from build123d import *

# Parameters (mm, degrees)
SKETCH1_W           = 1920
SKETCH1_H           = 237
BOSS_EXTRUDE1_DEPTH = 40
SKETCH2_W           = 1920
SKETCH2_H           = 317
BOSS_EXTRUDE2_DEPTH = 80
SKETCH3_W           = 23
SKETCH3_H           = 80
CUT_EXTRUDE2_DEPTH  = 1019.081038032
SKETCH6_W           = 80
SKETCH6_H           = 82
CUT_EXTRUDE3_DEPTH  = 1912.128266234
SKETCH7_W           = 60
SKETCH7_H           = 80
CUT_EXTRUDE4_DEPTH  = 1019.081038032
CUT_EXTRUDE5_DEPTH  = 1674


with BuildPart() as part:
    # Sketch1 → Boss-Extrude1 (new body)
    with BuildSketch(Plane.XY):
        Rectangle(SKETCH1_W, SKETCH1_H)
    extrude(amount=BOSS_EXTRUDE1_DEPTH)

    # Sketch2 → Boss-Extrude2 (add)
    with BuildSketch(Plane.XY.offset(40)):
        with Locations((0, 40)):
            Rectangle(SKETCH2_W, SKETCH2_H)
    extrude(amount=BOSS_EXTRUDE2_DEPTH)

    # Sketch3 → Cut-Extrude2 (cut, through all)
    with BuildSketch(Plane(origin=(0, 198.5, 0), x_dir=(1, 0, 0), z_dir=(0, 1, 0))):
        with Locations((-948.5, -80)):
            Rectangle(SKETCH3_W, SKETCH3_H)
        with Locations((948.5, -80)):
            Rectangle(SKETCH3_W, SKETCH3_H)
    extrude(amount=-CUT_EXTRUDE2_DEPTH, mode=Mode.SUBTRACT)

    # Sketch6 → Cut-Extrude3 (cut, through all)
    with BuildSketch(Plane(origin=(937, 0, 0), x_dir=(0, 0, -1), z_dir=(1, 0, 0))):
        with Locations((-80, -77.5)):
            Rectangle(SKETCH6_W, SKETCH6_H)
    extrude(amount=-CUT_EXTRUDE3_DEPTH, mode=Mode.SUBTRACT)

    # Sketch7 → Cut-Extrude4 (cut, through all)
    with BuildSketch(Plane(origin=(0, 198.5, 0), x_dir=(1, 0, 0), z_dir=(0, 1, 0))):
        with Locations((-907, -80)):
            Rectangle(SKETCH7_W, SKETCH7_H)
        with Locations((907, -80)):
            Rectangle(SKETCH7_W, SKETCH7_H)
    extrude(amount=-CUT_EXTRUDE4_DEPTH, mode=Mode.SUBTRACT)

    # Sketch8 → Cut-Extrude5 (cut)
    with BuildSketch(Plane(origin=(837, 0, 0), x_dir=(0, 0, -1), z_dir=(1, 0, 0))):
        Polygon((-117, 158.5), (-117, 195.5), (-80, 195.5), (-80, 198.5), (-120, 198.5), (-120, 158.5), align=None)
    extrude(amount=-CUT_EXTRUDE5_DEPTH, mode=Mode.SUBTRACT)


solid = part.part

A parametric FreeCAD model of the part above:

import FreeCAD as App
import Part
import Sketcher
from FreeCAD import Vector

doc = App.newDocument("Part")
body = doc.addObject("PartDesign::Body", "Body")

sketch1 = body.newObject("Sketcher::SketchObject", "Sketch")
sketch1.AttachmentSupport = (doc.getObject("XY_Plane"), [""])
sketch1.MapMode = "FlatFace"
sketch1.addGeometry([
    Part.LineSegment(Vector(-960, 118, 0), Vector(-960, -118, 0)),
    Part.LineSegment(Vector(-960, -118, 0), Vector(960, -118, 0)),
    Part.LineSegment(Vector(960, -118, 0), Vector(960, 118, 0)),
    Part.LineSegment(Vector(960, 118, 0), Vector(-960, 118, 0)),
], False)
sketch1.addConstraint([
    Sketcher.Constraint("Coincident", 0, 2, 1, 1),
    Sketcher.Constraint("Coincident", 1, 2, 2, 1),
    Sketcher.Constraint("Coincident", 2, 2, 3, 1),
    Sketcher.Constraint("Coincident", 3, 2, 0, 1),
    Sketcher.Constraint("Vertical", 0),
    Sketcher.Constraint("Horizontal", 1),
    Sketcher.Constraint("Vertical", 2),
    Sketcher.Constraint("Horizontal", 3),
    Sketcher.Constraint("Symmetric", 0, 2, 2, 2, -1, 1),
    Sketcher.Constraint("DistanceX", 1, 1, 1, 2, 1920.0),
    Sketcher.Constraint("DistanceY", 0, 2, 0, 1, 237.0),
])
pad1 = body.newObject("PartDesign::Pad", "Pad")
pad1.Profile = sketch1
pad1.Length = 40

sketch2 = body.newObject("Sketcher::SketchObject", "Sketch001")
sketch2.AttachmentSupport = (doc.getObject("XY_Plane"), [""])
sketch2.MapMode = "FlatFace"
sketch2.AttachmentOffset = App.Placement(Vector(0, 0, 40), App.Rotation())
sketch2.addGeometry([
    Part.LineSegment(Vector(-960, 198, 0), Vector(-960, -118, 0)),
    Part.LineSegment(Vector(-960, -118, 0), Vector(960, -118, 0)),
    Part.LineSegment(Vector(960, -118, 0), Vector(960, 198, 0)),
    Part.LineSegment(Vector(960, 198, 0), Vector(-960, 198, 0)),
], False)
sketch2.addConstraint([
    Sketcher.Constraint("Coincident", 0, 2, 1, 1),
    Sketcher.Constraint("Coincident", 1, 2, 2, 1),
    Sketcher.Constraint("Coincident", 2, 2, 3, 1),
    Sketcher.Constraint("Coincident", 3, 2, 0, 1),
    Sketcher.Constraint("Vertical", 0),
    Sketcher.Constraint("Horizontal", 1),
    Sketcher.Constraint("Vertical", 2),
    Sketcher.Constraint("Horizontal", 3),
    Sketcher.Constraint("DistanceX", 1, 1, 1, 2, 1920.0),
    Sketcher.Constraint("DistanceY", 0, 2, 0, 1, 317.0),
    Sketcher.Constraint("DistanceX", 0, 2, -1, 1, 960.0),
    Sketcher.Constraint("DistanceY", 0, 2, -1, 1, 118.5),
])
pad2 = body.newObject("PartDesign::Pad", "Pad001")
pad2.Profile = sketch2
pad2.Length = 80

sketch3 = body.newObject("Sketcher::SketchObject", "Sketch002")
sketch3.AttachmentSupport = (doc.getObject("XZ_Plane"), [""])
sketch3.MapMode = "FlatFace"
sketch3.AttachmentOffset = App.Placement(Vector(0, 0, -198.5), App.Rotation())
sketch3.addGeometry([
    Part.LineSegment(Vector(-960, 40, 0), Vector(-960, 120, 0)),
    Part.LineSegment(Vector(-960, 120, 0), Vector(-937, 120, 0)),
    Part.LineSegment(Vector(-937, 120, 0), Vector(-937, 40, 0)),
    Part.LineSegment(Vector(-937, 40, 0), Vector(-960, 40, 0)),
    Part.LineSegment(Vector(937, 40, 0), Vector(937, 120, 0)),
    Part.LineSegment(Vector(937, 120, 0), Vector(960, 120, 0)),
    Part.LineSegment(Vector(960, 120, 0), Vector(960, 40, 0)),
    Part.LineSegment(Vector(960, 40, 0), Vector(937, 40, 0)),
], False)
sketch3.addConstraint([
    Sketcher.Constraint("Coincident", 0, 2, 1, 1),
    Sketcher.Constraint("Coincident", 1, 2, 2, 1),
    Sketcher.Constraint("Coincident", 2, 2, 3, 1),
    Sketcher.Constraint("Coincident", 3, 2, 0, 1),
    Sketcher.Constraint("Coincident", 4, 2, 5, 1),
    Sketcher.Constraint("Coincident", 5, 2, 6, 1),
    Sketcher.Constraint("Coincident", 6, 2, 7, 1),
    Sketcher.Constraint("Coincident", 7, 2, 4, 1),
    Sketcher.Constraint("Vertical", 0),
    Sketcher.Constraint("Horizontal", 1),
    Sketcher.Constraint("Vertical", 2),
    Sketcher.Constraint("Horizontal", 3),
    Sketcher.Constraint("Vertical", 4),
    Sketcher.Constraint("Horizontal", 5),
    Sketcher.Constraint("Vertical", 6),
    Sketcher.Constraint("Horizontal", 7),
    Sketcher.Constraint("Symmetric", 1, 2, 4, 2, -2),
    Sketcher.Constraint("Symmetric", 3, 2, 6, 2, -2),
    Sketcher.Constraint("DistanceX", 1, 1, 1, 2, 23.0),
    Sketcher.Constraint("DistanceY", 0, 1, 0, 2, 80.0),
    Sketcher.Constraint("DistanceX", 0, 2, -1, 1, 960.0),
    Sketcher.Constraint("DistanceY", -1, 1, 0, 2, 120.0),
])
pocket1 = body.newObject("PartDesign::Pocket", "Pocket")
pocket1.Profile = sketch3
pocket1.Type = "ThroughAll"
pocket1.Reversed = True

sketch4 = body.newObject("Sketcher::SketchObject", "Sketch003")
sketch4.AttachmentSupport = (doc.getObject("YZ_Plane"), [""])
sketch4.MapMode = "FlatFace"
sketch4.AttachmentOffset = App.Placement(Vector(0, 0, 937), App.Rotation())
sketch4.addGeometry([
    Part.LineSegment(Vector(-36, 120, 0), Vector(-118, 120, 0)),
    Part.LineSegment(Vector(-118, 120, 0), Vector(-118, 40, 0)),
    Part.LineSegment(Vector(-118, 40, 0), Vector(-36, 40, 0)),
    Part.LineSegment(Vector(-36, 40, 0), Vector(-36, 120, 0)),
], False)
sketch4.addConstraint([
    Sketcher.Constraint("Coincident", 0, 2, 1, 1),
    Sketcher.Constraint("Coincident", 1, 2, 2, 1),
    Sketcher.Constraint("Coincident", 2, 2, 3, 1),
    Sketcher.Constraint("Coincident", 3, 2, 0, 1),
    Sketcher.Constraint("Horizontal", 0),
    Sketcher.Constraint("Vertical", 1),
    Sketcher.Constraint("Horizontal", 2),
    Sketcher.Constraint("Vertical", 3),
    Sketcher.Constraint("DistanceX", 0, 2, 0, 1, 82.0),
    Sketcher.Constraint("DistanceY", 1, 2, 1, 1, 80.0),
    Sketcher.Constraint("DistanceY", -1, 1, 0, 2, 120.0),
    Sketcher.Constraint("DistanceX", 0, 2, -1, 1, 118.5),
])
pocket2 = body.newObject("PartDesign::Pocket", "Pocket001")
pocket2.Profile = sketch4
pocket2.Type = "ThroughAll"

sketch5 = body.newObject("Sketcher::SketchObject", "Sketch004")
sketch5.AttachmentSupport = (doc.getObject("XZ_Plane"), [""])
sketch5.MapMode = "FlatFace"
sketch5.AttachmentOffset = App.Placement(Vector(0, 0, -198.5), App.Rotation())
sketch5.addGeometry([
    Part.LineSegment(Vector(-937, 40, 0), Vector(-937, 120, 0)),
    Part.LineSegment(Vector(-937, 120, 0), Vector(-877, 120, 0)),
    Part.LineSegment(Vector(-877, 120, 0), Vector(-877, 40, 0)),
    Part.LineSegment(Vector(-877, 40, 0), Vector(-937, 40, 0)),
    Part.LineSegment(Vector(877, 40, 0), Vector(877, 120, 0)),
    Part.LineSegment(Vector(877, 120, 0), Vector(937, 120, 0)),
    Part.LineSegment(Vector(937, 120, 0), Vector(937, 40, 0)),
    Part.LineSegment(Vector(937, 40, 0), Vector(877, 40, 0)),
], False)
sketch5.addConstraint([
    Sketcher.Constraint("Coincident", 0, 2, 1, 1),
    Sketcher.Constraint("Coincident", 1, 2, 2, 1),
    Sketcher.Constraint("Coincident", 2, 2, 3, 1),
    Sketcher.Constraint("Coincident", 3, 2, 0, 1),
    Sketcher.Constraint("Coincident", 4, 2, 5, 1),
    Sketcher.Constraint("Coincident", 5, 2, 6, 1),
    Sketcher.Constraint("Coincident", 6, 2, 7, 1),
    Sketcher.Constraint("Coincident", 7, 2, 4, 1),
    Sketcher.Constraint("Vertical", 0),
    Sketcher.Constraint("Horizontal", 1),
    Sketcher.Constraint("Vertical", 2),
    Sketcher.Constraint("Horizontal", 3),
    Sketcher.Constraint("Vertical", 4),
    Sketcher.Constraint("Horizontal", 5),
    Sketcher.Constraint("Vertical", 6),
    Sketcher.Constraint("Horizontal", 7),
    Sketcher.Constraint("Symmetric", 1, 2, 4, 2, -2),
    Sketcher.Constraint("Symmetric", 3, 2, 6, 2, -2),
    Sketcher.Constraint("DistanceX", 1, 1, 1, 2, 60.0),
    Sketcher.Constraint("DistanceY", 0, 1, 0, 2, 80.0),
    Sketcher.Constraint("DistanceX", 0, 2, -1, 1, 937.0),
    Sketcher.Constraint("DistanceY", -1, 1, 0, 2, 120.0),
])
pocket3 = body.newObject("PartDesign::Pocket", "Pocket002")
pocket3.Profile = sketch5
pocket3.Type = "ThroughAll"
pocket3.Reversed = True

sketch6 = body.newObject("Sketcher::SketchObject", "Sketch005")
sketch6.AttachmentSupport = (doc.getObject("YZ_Plane"), [""])
sketch6.MapMode = "FlatFace"
sketch6.AttachmentOffset = App.Placement(Vector(0, 0, 837), App.Rotation())
sketch6.addGeometry([
    Part.LineSegment(Vector(158.5, 117, 0), Vector(195.5, 117, 0)),
    Part.LineSegment(Vector(195.5, 117, 0), Vector(195.5, 80, 0)),
    Part.LineSegment(Vector(195.5, 80, 0), Vector(198.5, 80, 0)),
    Part.LineSegment(Vector(198.5, 80, 0), Vector(198.5, 120, 0)),
    Part.LineSegment(Vector(198.5, 120, 0), Vector(158.5, 120, 0)),
    Part.LineSegment(Vector(158.5, 120, 0), Vector(158.5, 117, 0)),
], False)
sketch6.addConstraint([
    Sketcher.Constraint("Coincident", 0, 2, 1, 1),
    Sketcher.Constraint("Coincident", 1, 2, 2, 1),
    Sketcher.Constraint("Coincident", 2, 2, 3, 1),
    Sketcher.Constraint("Coincident", 3, 2, 4, 1),
    Sketcher.Constraint("Coincident", 4, 2, 5, 1),
    Sketcher.Constraint("Coincident", 5, 2, 0, 1),
    Sketcher.Constraint("Horizontal", 0),
    Sketcher.Constraint("Vertical", 1),
    Sketcher.Constraint("Horizontal", 2),
    Sketcher.Constraint("Vertical", 3),
    Sketcher.Constraint("Horizontal", 4),
    Sketcher.Constraint("Vertical", 5),
    Sketcher.Constraint("Equal", 0, 1),
    Sketcher.Constraint("Equal", 4, 3),
    Sketcher.Constraint("DistanceX", 0, 1, 0, 2, 37.0),
    Sketcher.Constraint("DistanceX", 2, 1, 2, 2, 3.0),
    Sketcher.Constraint("DistanceY", -1, 1, 0, 2, 117.0),
    Sketcher.Constraint("DistanceX", -1, 1, 0, 2, 195.5),
])
pocket4 = body.newObject("PartDesign::Pocket", "Pocket003")
pocket4.Profile = sketch6
pocket4.Length = 1674

doc.recompute()
